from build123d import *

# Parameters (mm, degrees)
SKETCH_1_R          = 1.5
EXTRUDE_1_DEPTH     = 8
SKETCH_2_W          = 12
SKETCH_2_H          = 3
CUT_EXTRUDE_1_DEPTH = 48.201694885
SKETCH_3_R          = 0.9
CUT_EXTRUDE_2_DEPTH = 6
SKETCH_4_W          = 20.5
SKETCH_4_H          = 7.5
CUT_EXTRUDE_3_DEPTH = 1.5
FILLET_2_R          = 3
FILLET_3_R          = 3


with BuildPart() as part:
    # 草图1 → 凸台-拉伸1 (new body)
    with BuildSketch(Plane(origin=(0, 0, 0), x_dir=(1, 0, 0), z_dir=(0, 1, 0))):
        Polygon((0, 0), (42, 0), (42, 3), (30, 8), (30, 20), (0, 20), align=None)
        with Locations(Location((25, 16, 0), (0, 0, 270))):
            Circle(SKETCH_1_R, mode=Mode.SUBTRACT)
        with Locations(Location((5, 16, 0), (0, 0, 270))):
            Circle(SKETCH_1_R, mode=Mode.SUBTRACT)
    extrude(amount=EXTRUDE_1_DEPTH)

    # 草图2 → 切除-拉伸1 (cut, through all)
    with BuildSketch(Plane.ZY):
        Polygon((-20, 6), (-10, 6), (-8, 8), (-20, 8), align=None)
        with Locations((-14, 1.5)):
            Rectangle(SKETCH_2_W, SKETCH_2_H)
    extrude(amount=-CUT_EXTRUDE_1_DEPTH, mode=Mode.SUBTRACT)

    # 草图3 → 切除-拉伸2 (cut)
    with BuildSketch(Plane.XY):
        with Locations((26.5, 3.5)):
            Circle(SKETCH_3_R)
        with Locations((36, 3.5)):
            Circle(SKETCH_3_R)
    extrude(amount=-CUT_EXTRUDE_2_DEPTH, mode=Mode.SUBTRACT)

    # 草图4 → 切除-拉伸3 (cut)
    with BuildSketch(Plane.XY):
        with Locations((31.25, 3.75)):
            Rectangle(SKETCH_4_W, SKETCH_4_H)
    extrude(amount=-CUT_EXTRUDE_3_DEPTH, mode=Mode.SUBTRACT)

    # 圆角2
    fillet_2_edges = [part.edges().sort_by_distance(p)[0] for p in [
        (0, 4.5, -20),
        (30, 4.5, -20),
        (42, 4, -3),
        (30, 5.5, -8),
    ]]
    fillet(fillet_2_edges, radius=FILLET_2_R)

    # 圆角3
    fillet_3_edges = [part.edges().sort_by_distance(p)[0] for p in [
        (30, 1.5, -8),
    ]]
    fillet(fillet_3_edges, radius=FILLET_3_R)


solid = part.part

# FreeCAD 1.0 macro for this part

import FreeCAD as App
import Part
import Sketcher
from FreeCAD import Vector
Q = App.Units.Quantity


def edges_at(feature, points):
    """Names of the edges that pass closest to the given points."""
    edges = feature.Shape.Edges
    near = lambda p: min(range(len(edges)), key=lambda i: edges[i].distToShape(Part.Vertex(*p))[0])
    return sorted({f"Edge{near(p) + 1}" for p in points})


def add_polygon(sketch, points):
    """Adds a closed chain of lines whose ends are joined by coincident constraints."""
    first, n = sketch.GeometryCount, len(points)
    for a, b in zip(points, points[1:] + points[:1]):
        sketch.addGeometry(Part.LineSegment(App.Vector(*a, 0), App.Vector(*b, 0)), False)
    for i in range(n):
        sketch.addConstraint(Sketcher.Constraint("Coincident", first + i, 2, first + (i + 1) % n, 1))

doc = App.newDocument("Part")
body = doc.addObject("PartDesign::Body", "Body")

# Sketch on XZ plane
sketch1 = body.newObject("Sketcher::SketchObject", "Sketch")
sketch1.AttachmentSupport = (doc.getObject("XZ_Plane"), [""])
sketch1.MapMode = "FlatFace"
add_polygon(sketch1, [(0, 0), (42, 0), (42, -3), (30, -8), (30, -20), (0, -20)])  # lines 0-5
sketch1.addGeometry(Part.Circle(Vector(5, -16, 0), Vector(0, 0, 1), 1.5), False)  # 6
sketch1.addGeometry(Part.Circle(Vector(25, -16, 0), Vector(0, 0, 1), 1.5), False)  # 7
sketch1.addConstraint(Sketcher.Constraint("Horizontal", 0))
sketch1.addConstraint(Sketcher.Constraint("Vertical", 1))
sketch1.addConstraint(Sketcher.Constraint("Vertical", 3))
sketch1.addConstraint(Sketcher.Constraint("Horizontal", 4))
sketch1.addConstraint(Sketcher.Constraint("Vertical", 5))
sketch1.addConstraint(Sketcher.Constraint("Coincident", 5, 2, -1, 1))
sketch1.addConstraint(Sketcher.Constraint("Equal", 6, 7))
sketch1.addConstraint(Sketcher.Constraint("Horizontal", 6, 3, 7, 3))
sketch1.addConstraint(Sketcher.Constraint("Diameter", 6, Q("3 mm")))
sketch1.addConstraint(Sketcher.Constraint("DistanceX", 0, 1, 0, 2, Q("42 mm")))
sketch1.addConstraint(Sketcher.Constraint("DistanceX", 4, 2, 4, 1, Q("30 mm")))
sketch1.addConstraint(Sketcher.Constraint("DistanceY", 1, 2, 1, 1, Q("3 mm")))
sketch1.addConstraint(Sketcher.Constraint("DistanceY", 3, 2, 3, 1, Q("12 mm")))
sketch1.addConstraint(Sketcher.Constraint("DistanceY", 5, 1, 5, 2, Q("20 mm")))
sketch1.addConstraint(Sketcher.Constraint("DistanceX", -1, 1, 6, 3, Q("5 mm")))
sketch1.addConstraint(Sketcher.Constraint("DistanceY", 6, 3, -1, 1, Q("16 mm")))
sketch1.addConstraint(Sketcher.Constraint("DistanceX", -1, 1, 7, 3, Q("25 mm")))
pad1 = body.newObject("PartDesign::Pad", "Pad")
pad1.Profile = sketch1
pad1.Length = 8
pad1.Reversed = True

# Sketch on YZ plane
sketch2 = body.newObject("Sketcher::SketchObject", "Sketch001")
sketch2.AttachmentSupport = (doc.getObject("YZ_Plane"), [""])
sketch2.MapMode = "FlatFace"
add_polygon(sketch2, [(6, -20), (6, -10), (8, -8), (8, -20)])  # lines 0-3
add_polygon(sketch2, [(3, -20), (0, -20), (0, -8), (3, -8)])  # lines 4-7
sketch2.addConstraint(Sketcher.Constraint("Vertical", 0))
sketch2.addConstraint(Sketcher.Constraint("Vertical", 2))
sketch2.addConstraint(Sketcher.Constraint("Horizontal", 3))
sketch2.addConstraint(Sketcher.Constraint("Horizontal", 4))
sketch2.addConstraint(Sketcher.Constraint("Vertical", 5))
sketch2.addConstraint(Sketcher.Constraint("Horizontal", 6))
sketch2.addConstraint(Sketcher.Constraint("Vertical", 7))
sketch2.addConstraint(Sketcher.Constraint("PointOnObject", 4, 2, -2))
sketch2.addConstraint(Sketcher.Constraint("Horizontal", 3, 2, 4, 2))
sketch2.addConstraint(Sketcher.Constraint("Horizontal", 1, 2, 5, 2))
sketch2.addConstraint(Sketcher.Constraint("DistanceX", 3, 2, 3, 1, Q("2 mm")))
sketch2.addConstraint(Sketcher.Constraint("DistanceX", 4, 2, 4, 1, Q("3 mm")))
sketch2.addConstraint(Sketcher.Constraint("DistanceY", 0, 1, 0, 2, Q("10 mm")))
sketch2.addConstraint(Sketcher.Constraint("DistanceY", 2, 2, 2, 1, Q("12 mm")))
sketch2.addConstraint(Sketcher.Constraint("DistanceX", -1, 1, 0, 2, Q("6 mm")))
sketch2.addConstraint(Sketcher.Constraint("DistanceY", 0, 2, -1, 1, Q("10 mm")))
pocket1 = body.newObject("PartDesign::Pocket", "Pocket")
pocket1.Profile = sketch2
pocket1.Type = "ThroughAll"
pocket1.Reversed = True

# Sketch on XY plane
sketch3 = body.newObject("Sketcher::SketchObject", "Sketch002")
sketch3.AttachmentSupport = (doc.getObject("XY_Plane"), [""])
sketch3.MapMode = "FlatFace"
sketch3.addGeometry(Part.Circle(Vector(26.5, 3.5, 0), Vector(0, 0, 1), 0.9), False)
sketch3.addGeometry(Part.Circle(Vector(36, 3.5, 0), Vector(0, 0, 1), 0.9), False)
sketch3.addConstraint(Sketcher.Constraint("Equal", 0, 1))
sketch3.addConstraint(Sketcher.Constraint("Horizontal", 0, 3, 1, 3))
sketch3.addConstraint(Sketcher.Constraint("Diameter", 0, Q("1.8 mm")))
sketch3.addConstraint(Sketcher.Constraint("DistanceX", -1, 1, 1, 3, Q("36 mm")))
sketch3.addConstraint(Sketcher.Constraint("DistanceX", -1, 1, 0, 3, Q("26.5 mm")))
sketch3.addConstraint(Sketcher.Constraint("DistanceY", -1, 1, 0, 3, Q("3.5 mm")))
pocket2 = body.newObject("PartDesign::Pocket", "Pocket001")
pocket2.Profile = sketch3
pocket2.Length = 6

# Sketch on XY plane
sketch4 = body.newObject("Sketcher::SketchObject", "Sketch003")
sketch4.AttachmentSupport = (doc.getObject("XY_Plane"), [""])
sketch4.MapMode = "FlatFace"
add_polygon(sketch4, [(21, 8), (21, 0), (42, 0), (42, 8)])  # lines 0-3
sketch4.addConstraint(Sketcher.Constraint("Vertical", 0))
sketch4.addConstraint(Sketcher.Constraint("Horizontal", 1))
sketch4.addConstraint(Sketcher.Constraint("Vertical", 2))
sketch4.addConstraint(Sketcher.Constraint("Horizontal", 3))
sketch4.addConstraint(Sketcher.Constraint("PointOnObject", 0, 2, -1))
sketch4.addConstraint(Sketcher.Constraint("DistanceX", 1, 1, 1, 2, Q("20.5 mm")))
sketch4.addConstraint(Sketcher.Constraint("DistanceY", 0, 2, 0, 1, Q("7.5 mm")))
sketch4.addConstraint(Sketcher.Constraint("DistanceX", -1, 1, 0, 2, Q("21 mm")))
pocket3 = body.newObject("PartDesign::Pocket", "Pocket002")
pocket3.Profile = sketch4
pocket3.Length = 1.5
doc.recompute()

fillet = body.newObject("PartDesign::Fillet", "Fillet")
fillet.Base = (pocket3, edges_at(pocket3, [
    (0, 4.5, -20),
    (30, 4.5, -20),
    (42, 4, -3),
    (30, 5.5, -8),
]))
fillet.Radius = 3
doc.recompute()

fillet2 = body.newObject("PartDesign::Fillet", "Fillet001")
fillet2.Base = (fillet, edges_at(fillet, [(30, 1.5, -8)]))
fillet2.Radius = 3

doc.recompute()
